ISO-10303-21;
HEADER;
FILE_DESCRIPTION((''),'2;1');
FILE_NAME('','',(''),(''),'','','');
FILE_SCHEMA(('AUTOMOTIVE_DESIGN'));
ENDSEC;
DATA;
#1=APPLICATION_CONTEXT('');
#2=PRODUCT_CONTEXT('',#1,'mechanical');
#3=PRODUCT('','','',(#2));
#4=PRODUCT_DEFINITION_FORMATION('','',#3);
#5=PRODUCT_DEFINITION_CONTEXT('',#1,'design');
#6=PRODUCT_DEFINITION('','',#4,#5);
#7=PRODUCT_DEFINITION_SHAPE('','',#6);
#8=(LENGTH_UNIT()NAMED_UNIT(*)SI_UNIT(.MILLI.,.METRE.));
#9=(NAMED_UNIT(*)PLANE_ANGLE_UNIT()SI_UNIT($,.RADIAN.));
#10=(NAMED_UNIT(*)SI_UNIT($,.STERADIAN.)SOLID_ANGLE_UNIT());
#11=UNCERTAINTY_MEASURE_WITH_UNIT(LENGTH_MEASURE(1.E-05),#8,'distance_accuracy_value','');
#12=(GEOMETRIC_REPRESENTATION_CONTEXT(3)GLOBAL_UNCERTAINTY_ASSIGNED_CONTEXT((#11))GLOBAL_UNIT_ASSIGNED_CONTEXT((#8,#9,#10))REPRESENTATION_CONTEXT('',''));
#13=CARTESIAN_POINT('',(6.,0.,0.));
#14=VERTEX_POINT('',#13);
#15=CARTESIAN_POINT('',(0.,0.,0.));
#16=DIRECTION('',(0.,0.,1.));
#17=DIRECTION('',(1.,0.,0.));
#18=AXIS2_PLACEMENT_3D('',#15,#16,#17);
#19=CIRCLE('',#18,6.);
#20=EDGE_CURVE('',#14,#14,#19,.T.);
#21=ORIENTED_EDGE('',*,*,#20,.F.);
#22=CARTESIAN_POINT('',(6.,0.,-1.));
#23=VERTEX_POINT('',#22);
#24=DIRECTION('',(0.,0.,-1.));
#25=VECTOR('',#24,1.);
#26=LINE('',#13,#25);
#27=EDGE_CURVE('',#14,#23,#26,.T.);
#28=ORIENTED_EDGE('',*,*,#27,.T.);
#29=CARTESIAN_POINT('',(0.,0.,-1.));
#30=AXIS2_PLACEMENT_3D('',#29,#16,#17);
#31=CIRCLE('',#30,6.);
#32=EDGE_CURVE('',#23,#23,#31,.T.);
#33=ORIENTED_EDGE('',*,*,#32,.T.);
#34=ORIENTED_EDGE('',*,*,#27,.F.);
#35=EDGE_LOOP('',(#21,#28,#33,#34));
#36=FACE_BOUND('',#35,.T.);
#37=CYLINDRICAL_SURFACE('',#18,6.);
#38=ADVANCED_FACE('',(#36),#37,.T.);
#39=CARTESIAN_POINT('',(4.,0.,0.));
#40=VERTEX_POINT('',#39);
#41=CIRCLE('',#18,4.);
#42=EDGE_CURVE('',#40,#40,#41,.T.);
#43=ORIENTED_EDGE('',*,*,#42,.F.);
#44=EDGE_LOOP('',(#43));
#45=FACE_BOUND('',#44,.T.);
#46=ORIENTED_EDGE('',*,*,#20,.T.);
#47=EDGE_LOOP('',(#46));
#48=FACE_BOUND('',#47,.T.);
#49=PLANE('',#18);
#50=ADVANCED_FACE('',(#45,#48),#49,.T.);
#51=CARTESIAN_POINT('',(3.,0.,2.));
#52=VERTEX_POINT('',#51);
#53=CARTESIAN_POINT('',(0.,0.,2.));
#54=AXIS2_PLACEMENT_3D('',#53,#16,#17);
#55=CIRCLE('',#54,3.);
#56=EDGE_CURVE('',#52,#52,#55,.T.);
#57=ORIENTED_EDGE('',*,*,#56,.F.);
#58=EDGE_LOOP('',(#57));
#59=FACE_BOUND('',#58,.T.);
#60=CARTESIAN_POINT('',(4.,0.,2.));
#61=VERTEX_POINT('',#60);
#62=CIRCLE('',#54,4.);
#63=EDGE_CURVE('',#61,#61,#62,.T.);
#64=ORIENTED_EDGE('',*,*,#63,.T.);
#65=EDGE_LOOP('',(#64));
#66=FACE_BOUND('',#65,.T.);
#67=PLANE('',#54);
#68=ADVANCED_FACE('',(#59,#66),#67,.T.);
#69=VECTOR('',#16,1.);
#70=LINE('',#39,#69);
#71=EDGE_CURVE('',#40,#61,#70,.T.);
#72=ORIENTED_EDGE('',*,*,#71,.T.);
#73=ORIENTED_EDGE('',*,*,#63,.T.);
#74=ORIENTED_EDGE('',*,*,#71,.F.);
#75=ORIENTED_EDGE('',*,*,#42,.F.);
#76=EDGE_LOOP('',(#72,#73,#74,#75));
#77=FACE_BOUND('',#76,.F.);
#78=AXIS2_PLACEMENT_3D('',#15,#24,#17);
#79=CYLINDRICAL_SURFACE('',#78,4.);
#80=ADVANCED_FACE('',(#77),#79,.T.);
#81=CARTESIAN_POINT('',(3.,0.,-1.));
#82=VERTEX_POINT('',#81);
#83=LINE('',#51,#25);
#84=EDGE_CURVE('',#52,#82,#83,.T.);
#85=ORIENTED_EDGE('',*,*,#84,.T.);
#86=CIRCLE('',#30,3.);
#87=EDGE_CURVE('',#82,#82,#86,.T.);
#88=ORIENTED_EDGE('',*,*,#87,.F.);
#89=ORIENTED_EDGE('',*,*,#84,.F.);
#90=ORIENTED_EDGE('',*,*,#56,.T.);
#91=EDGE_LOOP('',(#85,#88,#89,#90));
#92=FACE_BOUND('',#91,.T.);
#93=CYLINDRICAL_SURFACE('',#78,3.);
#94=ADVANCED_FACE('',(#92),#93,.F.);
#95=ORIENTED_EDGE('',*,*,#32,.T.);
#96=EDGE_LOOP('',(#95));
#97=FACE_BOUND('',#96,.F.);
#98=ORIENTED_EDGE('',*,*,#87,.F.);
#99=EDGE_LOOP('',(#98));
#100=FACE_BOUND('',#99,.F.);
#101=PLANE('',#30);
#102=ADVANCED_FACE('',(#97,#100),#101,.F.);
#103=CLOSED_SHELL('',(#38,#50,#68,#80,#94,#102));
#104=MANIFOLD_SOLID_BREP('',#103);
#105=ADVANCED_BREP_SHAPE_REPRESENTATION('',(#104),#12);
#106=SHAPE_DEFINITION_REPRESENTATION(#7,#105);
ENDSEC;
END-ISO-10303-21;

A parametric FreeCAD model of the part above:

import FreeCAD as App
import Part
import Sketcher

V = App.Vector

doc = App.newDocument("Part")
body = doc.addObject("PartDesign::Body", "Body")

# Sketch on XY plane
sketch1 = body.newObject("Sketcher::SketchObject", "Sketch")
sketch1.AttachmentSupport = (doc.getObject("XY_Plane"), [""])
sketch1.MapMode = "FlatFace"
sketch1.addGeometry([
    Part.Circle(V(0, 0, 0), V(0, 0, 1), 4),
    Part.Circle(V(0, 0, 0), V(0, 0, 1), 3),
], False)
sketch1.addConstraint([
    Sketcher.Constraint("Coincident", 0, 3, -1, 1),
    Sketcher.Constraint("Coincident", 1, 3, -1, 1),
    Sketcher.Constraint("Diameter", 0, 8.0),
    Sketcher.Constraint("Diameter", 1, 6.0),
])
pad1 = body.newObject("PartDesign::Pad", "Pad")
pad1.Profile = sketch1
pad1.Length = 2

# Sketch on XY plane
sketch2 = body.newObject("Sketcher::SketchObject", "Sketch001")
sketch2.AttachmentSupport = (doc.getObject("XY_Plane"), [""])
sketch2.MapMode = "FlatFace"
sketch2.addGeometry([
    Part.Circle(V(0, 0, 0), V(0, 0, 1), 6),
    Part.Circle(V(0, 0, 0), V(0, 0, 1), 3),
], False)
sketch2.addConstraint([
    Sketcher.Constraint("Coincident", 0, 3, -1, 1),
    Sketcher.Constraint("Coincident", 1, 3, -1, 1),
    Sketcher.Constraint("Diameter", 0, 12.0),
    Sketcher.Constraint("Diameter", 1, 6.0),
])
pad2 = body.newObject("PartDesign::Pad", "Pad001")
pad2.Profile = sketch2
pad2.Length = 1
pad2.Reversed = True

doc.recompute()
